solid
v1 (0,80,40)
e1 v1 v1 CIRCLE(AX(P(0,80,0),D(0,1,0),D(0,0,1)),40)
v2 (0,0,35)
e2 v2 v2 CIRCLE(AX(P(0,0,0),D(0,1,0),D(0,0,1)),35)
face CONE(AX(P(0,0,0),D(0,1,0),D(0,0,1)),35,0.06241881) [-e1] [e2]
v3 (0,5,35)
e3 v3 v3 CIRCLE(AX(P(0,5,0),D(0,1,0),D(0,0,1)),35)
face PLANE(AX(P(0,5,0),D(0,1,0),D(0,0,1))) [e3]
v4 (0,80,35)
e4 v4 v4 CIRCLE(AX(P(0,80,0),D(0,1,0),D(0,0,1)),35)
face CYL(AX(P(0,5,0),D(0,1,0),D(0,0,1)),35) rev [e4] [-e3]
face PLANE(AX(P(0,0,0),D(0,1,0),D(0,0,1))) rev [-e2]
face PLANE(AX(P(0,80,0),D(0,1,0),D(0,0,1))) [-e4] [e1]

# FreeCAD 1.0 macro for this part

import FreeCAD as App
import Part
import Sketcher
from FreeCAD import Vector
Q = App.Units.Quantity

doc = App.newDocument("Part")
body = doc.addObject("PartDesign::Body", "Body")

sketch1 = body.newObject("Sketcher::SketchObject", "Sketch")
sketch1.AttachmentSupport = (doc.getObject("XZ_Plane"), [""])
sketch1.MapMode = "FlatFace"
sketch1.AttachmentOffset = App.Placement(Vector(0, 0, -80), App.Rotation())
sketch1.addGeometry(Part.Circle(Vector(0, 0, 0), Vector(0, 0, 1), 40), False)
sketch1.addConstraint([
    Sketcher.Constraint("Coincident", 0, 3, -1, 1),
    Sketcher.Constraint("Diameter", 0, Q("80 mm")),
])

sketch2 = body.newObject("Sketcher::SketchObject", "Sketch001")
sketch2.AttachmentSupport = (doc.getObject("XZ_Plane"), [""])
sketch2.MapMode = "FlatFace"
sketch2.addGeometry(Part.Circle(Vector(0, 0, 0), Vector(0, 0, 1), 35), False)
sketch2.addConstraint([
    Sketcher.Constraint("Coincident", 0, 3, -1, 1),
    Sketcher.Constraint("Diameter", 0, Q("70 mm")),
])

additiveloft = body.newObject("PartDesign::AdditiveLoft", "AdditiveLoft")
additiveloft.Profile = sketch1
additiveloft.Sections = [sketch2]

sketch3 = body.newObject("Sketcher::SketchObject", "Sketch002")
sketch3.AttachmentSupport = (doc.getObject("XZ_Plane"), [""])
sketch3.MapMode = "FlatFace"
sketch3.AttachmentOffset = App.Placement(Vector(0, 0, -80), App.Rotation())
sketch3.addGeometry(Part.Circle(Vector(0, 0, 0), Vector(0, 0, 1), 35), False)
sketch3.addConstraint([
    Sketcher.Constraint("Coincident", 0, 3, -1, 1),
    Sketcher.Constraint("Diameter", 0, Q("70 mm")),
])
pocket1 = body.newObject("PartDesign::Pocket", "Pocket")
pocket1.Profile = sketch3
pocket1.Length = 75
pocket1.Reversed = True

doc.recompute()
